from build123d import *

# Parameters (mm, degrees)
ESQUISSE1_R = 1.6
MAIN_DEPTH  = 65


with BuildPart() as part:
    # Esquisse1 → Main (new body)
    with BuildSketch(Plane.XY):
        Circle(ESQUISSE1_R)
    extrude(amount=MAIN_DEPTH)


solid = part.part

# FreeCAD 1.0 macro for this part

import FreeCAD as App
import Part
import Sketcher
Q = App.Units.Quantity

doc = App.newDocument("Part")
body = doc.addObject("PartDesign::Body", "Body")

sketch1 = body.newObject("Sketcher::SketchObject", "Sketch")
sketch1.AttachmentSupport = (doc.getObject("XY_Plane"), [""])
sketch1.MapMode = "FlatFace"
sketch1.addGeometry(Part.Circle(App.Vector(0, 0, 0), App.Vector(0, 0, 1), 1.6), False)
sketch1.addConstraint(Sketcher.Constraint("Coincident", 0, 3, -1, 1))
sketch1.addConstraint(Sketcher.Constraint("Diameter", 0, Q("3.2 mm")))
pad1 = body.newObject("PartDesign::Pad", "Pad")
pad1.Profile = sketch1
pad1.Length = 65

doc.recompute()
